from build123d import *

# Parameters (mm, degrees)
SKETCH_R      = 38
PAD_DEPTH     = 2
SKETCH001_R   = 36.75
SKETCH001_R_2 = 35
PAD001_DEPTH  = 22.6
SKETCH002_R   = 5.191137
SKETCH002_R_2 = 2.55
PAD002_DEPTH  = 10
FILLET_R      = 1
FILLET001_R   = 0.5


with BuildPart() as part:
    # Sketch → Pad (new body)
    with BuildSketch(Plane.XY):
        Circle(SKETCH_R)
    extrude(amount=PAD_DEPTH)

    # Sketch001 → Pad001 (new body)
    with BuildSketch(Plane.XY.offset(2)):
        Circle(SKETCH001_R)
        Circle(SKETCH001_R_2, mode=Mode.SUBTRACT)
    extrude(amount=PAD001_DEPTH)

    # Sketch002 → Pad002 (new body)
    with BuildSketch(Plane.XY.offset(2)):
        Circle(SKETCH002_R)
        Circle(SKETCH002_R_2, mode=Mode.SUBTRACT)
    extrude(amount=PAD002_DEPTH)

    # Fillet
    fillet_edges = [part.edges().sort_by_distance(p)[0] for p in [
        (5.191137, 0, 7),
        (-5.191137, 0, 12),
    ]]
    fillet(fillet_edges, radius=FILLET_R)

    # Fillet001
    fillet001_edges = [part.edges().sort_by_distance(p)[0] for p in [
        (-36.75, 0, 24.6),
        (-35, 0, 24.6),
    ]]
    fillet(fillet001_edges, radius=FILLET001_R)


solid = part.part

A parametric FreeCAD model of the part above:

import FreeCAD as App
import Part
import Sketcher


def edges_at(feature, points):
    """Names of the edges that pass closest to the given points."""
    edges = feature.Shape.Edges
    near = lambda p: min(range(len(edges)), key=lambda i: edges[i].distToShape(Part.Vertex(*p))[0])
    return sorted({f"Edge{near(p) + 1}" for p in points})

doc = App.newDocument("Part")
body = doc.addObject("PartDesign::Body", "Body")

sketch1 = body.newObject("Sketcher::SketchObject", "Sketch")
sketch1.AttachmentSupport = (doc.getObject("XY_Plane"), [""])
sketch1.MapMode = "FlatFace"
sketch1.addGeometry(Part.Circle(App.Vector(0, 0, 0), App.Vector(0, 0, 1), 38), False)
sketch1.addConstraint(Sketcher.Constraint("Coincident", 0, 3, -1, 1))
sketch1.addConstraint(Sketcher.Constraint("Diameter", 0, 76.0))
pad1 = body.newObject("PartDesign::Pad", "Pad")
pad1.Profile = sketch1
pad1.Length = 2

sketch2 = body.newObject("Sketcher::SketchObject", "Sketch001")
sketch2.AttachmentSupport = (doc.getObject("XY_Plane"), [""])
sketch2.MapMode = "FlatFace"
sketch2.AttachmentOffset = App.Placement(App.Vector(0, 0, 2), App.Rotation())
sketch2.addGeometry(Part.Circle(App.Vector(0, 0, 0), App.Vector(0, 0, 1), 37), False)
sketch2.addGeometry(Part.Circle(App.Vector(0, 0, 0), App.Vector(0, 0, 1), 35), False)
sketch2.addConstraint(Sketcher.Constraint("Coincident", 0, 3, -1, 1))
sketch2.addConstraint(Sketcher.Constraint("Coincident", 1, 3, -1, 1))
sketch2.addConstraint(Sketcher.Constraint("Diameter", 1, 70.0))
sketch2.addConstraint(Sketcher.Constraint("Diameter", 0, 73.5))
pad2 = body.newObject("PartDesign::Pad", "Pad001")
pad2.Profile = sketch2
pad2.Length = 22.6

sketch3 = body.newObject("Sketcher::SketchObject", "Sketch002")
sketch3.AttachmentSupport = (doc.getObject("XY_Plane"), [""])
sketch3.MapMode = "FlatFace"
sketch3.AttachmentOffset = App.Placement(App.Vector(0, 0, 2), App.Rotation())
sketch3.addGeometry(Part.Circle(App.Vector(0, 0, 0), App.Vector(0, 0, 1), 5.2), False)
sketch3.addGeometry(Part.Circle(App.Vector(0, 0, 0), App.Vector(0, 0, 1), 2.5), False)
sketch3.addConstraint(Sketcher.Constraint("Coincident", 0, 3, -1, 1))
sketch3.addConstraint(Sketcher.Constraint("Coincident", 1, 3, -1, 1))
sketch3.addConstraint(Sketcher.Constraint("Diameter", 1, 5.1))
sketch3.addConstraint(Sketcher.Constraint("Diameter", 0, 10.382274))
pad3 = body.newObject("PartDesign::Pad", "Pad002")
pad3.Profile = sketch3
pad3.Length = 10
doc.recompute()

fillet = body.newObject("PartDesign::Fillet", "Fillet")
fillet.Base = (pad3, edges_at(pad3, [(5.191, 0, 7), (-5.191, 0, 12)]))
fillet.Radius = 1
doc.recompute()

fillet2 = body.newObject("PartDesign::Fillet", "Fillet001")
fillet2.Base = (fillet, edges_at(fillet, [(-36.75, 0, 24.6), (-35, 0, 24.6)]))
fillet2.Radius = 0.5

doc.recompute()
